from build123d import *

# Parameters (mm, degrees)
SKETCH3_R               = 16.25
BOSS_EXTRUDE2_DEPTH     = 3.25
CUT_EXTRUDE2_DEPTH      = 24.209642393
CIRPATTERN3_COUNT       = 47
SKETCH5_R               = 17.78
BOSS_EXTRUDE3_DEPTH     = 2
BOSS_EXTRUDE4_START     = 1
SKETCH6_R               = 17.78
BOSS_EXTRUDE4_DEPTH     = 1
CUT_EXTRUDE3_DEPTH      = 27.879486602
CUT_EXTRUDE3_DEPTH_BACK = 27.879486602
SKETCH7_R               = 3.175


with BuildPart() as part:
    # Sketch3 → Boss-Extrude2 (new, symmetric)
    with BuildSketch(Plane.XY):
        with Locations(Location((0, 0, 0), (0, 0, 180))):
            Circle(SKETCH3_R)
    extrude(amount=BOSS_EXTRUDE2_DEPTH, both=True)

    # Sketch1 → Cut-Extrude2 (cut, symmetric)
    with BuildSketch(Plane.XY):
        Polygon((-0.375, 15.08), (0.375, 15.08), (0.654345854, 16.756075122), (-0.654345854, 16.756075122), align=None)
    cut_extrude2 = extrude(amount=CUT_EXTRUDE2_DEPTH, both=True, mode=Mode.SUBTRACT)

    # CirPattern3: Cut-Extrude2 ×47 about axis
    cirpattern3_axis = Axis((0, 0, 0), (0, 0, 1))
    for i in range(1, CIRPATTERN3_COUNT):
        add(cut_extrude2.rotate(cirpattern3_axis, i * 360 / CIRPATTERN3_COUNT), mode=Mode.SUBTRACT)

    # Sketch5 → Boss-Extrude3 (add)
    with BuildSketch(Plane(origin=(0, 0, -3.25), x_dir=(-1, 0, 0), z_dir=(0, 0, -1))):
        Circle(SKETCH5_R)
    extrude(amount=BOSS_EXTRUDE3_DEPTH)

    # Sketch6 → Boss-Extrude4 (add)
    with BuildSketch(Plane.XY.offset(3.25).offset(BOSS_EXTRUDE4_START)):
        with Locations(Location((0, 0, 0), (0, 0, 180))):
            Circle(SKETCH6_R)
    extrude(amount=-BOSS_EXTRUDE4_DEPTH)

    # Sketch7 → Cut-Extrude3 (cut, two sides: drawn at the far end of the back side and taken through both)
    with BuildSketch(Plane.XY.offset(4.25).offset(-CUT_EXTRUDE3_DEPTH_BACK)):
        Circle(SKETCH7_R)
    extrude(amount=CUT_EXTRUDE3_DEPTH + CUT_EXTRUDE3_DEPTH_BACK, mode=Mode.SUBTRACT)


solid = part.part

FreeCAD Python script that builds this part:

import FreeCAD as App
import Part
import Sketcher

V = App.Vector

doc = App.newDocument("Part")
body = doc.addObject("PartDesign::Body", "Body")

# Sketch on XY plane
sketch1 = body.newObject("Sketcher::SketchObject", "Sketch")
sketch1.AttachmentSupport = (doc.getObject("XY_Plane"), [""])
sketch1.MapMode = "FlatFace"
sketch1.addGeometry(Part.Circle(V(0, 0, 0), V(0, 0, 1), 16), False)
sketch1.addConstraint(Sketcher.Constraint("Coincident", 0, 3, -1, 1))
sketch1.addConstraint(Sketcher.Constraint("Diameter", 0, 32.5))
pad1 = body.newObject("PartDesign::Pad", "Pad")
pad1.Profile = sketch1
pad1.Length = 6.5
pad1.Midplane = True

# Sketch on XY plane
sketch2 = body.newObject("Sketcher::SketchObject", "Sketch001")
sketch2.AttachmentSupport = (doc.getObject("XY_Plane"), [""])
sketch2.MapMode = "FlatFace"
sketch2.addGeometry(Part.LineSegment(V(-0.4, 15.1, 0), V(0.4, 15.1, 0)), False)
sketch2.addGeometry(Part.LineSegment(V(0.4, 15.1, 0), V(0.7, 16.8, 0)), False)
sketch2.addGeometry(Part.LineSegment(V(0.7, 16.8, 0), V(-0.7, 16.8, 0)), False)
sketch2.addGeometry(Part.LineSegment(V(-0.7, 16.8, 0), V(-0.4, 15.1, 0)), False)
sketch2.addConstraint(Sketcher.Constraint("Coincident", 0, 2, 1, 1))
sketch2.addConstraint(Sketcher.Constraint("Coincident", 1, 2, 2, 1))
sketch2.addConstraint(Sketcher.Constraint("Coincident", 2, 2, 3, 1))
sketch2.addConstraint(Sketcher.Constraint("Coincident", 3, 2, 0, 1))
sketch2.addConstraint(Sketcher.Constraint("Horizontal", 0))
sketch2.addConstraint(Sketcher.Constraint("Horizontal", 2))
sketch2.addConstraint(Sketcher.Constraint("Equal", 1, 3))
sketch2.addConstraint(Sketcher.Constraint("DistanceX", 0, 1, 0, 2, 0.75))
sketch2.addConstraint(Sketcher.Constraint("DistanceY", -1, 1, 0, 2, 15.08))
sketch2.addConstraint(Sketcher.Constraint("DistanceX", -1, 1, 0, 2, 0.375))
sketch2.addConstraint(Sketcher.Constraint("DistanceX", 2, 2, 2, 1, 1.308692))
sketch2.addConstraint(Sketcher.Constraint("Distance", 1, 1.699194))
pocket1 = body.newObject("PartDesign::Pocket", "Pocket")
pocket1.Profile = sketch2
pocket1.Length = 48.419285
pocket1.Midplane = True
doc.recompute()

polarpattern = body.newObject("PartDesign::PolarPattern", "PolarPattern")
polarpattern.Originals = [pocket1]
polarpattern.Axis = (doc.getObject("Z_Axis"), [""])
polarpattern.Angle = 360
polarpattern.Occurrences = 47
body.Tip = polarpattern

# Sketch on XY plane
sketch3 = body.newObject("Sketcher::SketchObject", "Sketch002")
sketch3.AttachmentSupport = (doc.getObject("XY_Plane"), [""])
sketch3.MapMode = "FlatFace"
sketch3.AttachmentOffset = App.Placement(V(0, 0, -3.25), App.Rotation())
sketch3.addGeometry(Part.Circle(V(0, 0, 0), V(0, 0, 1), 18), False)
sketch3.addConstraint(Sketcher.Constraint("Coincident", 0, 3, -1, 1))
sketch3.addConstraint(Sketcher.Constraint("Diameter", 0, 35.56))
pad2 = body.newObject("PartDesign::Pad", "Pad001")
pad2.Profile = sketch3
pad2.Length = 2
pad2.Reversed = True

# Sketch on XY plane
sketch4 = body.newObject("Sketcher::SketchObject", "Sketch003")
sketch4.AttachmentSupport = (doc.getObject("XY_Plane"), [""])
sketch4.MapMode = "FlatFace"
sketch4.AttachmentOffset = App.Placement(V(0, 0, 4.25), App.Rotation())
sketch4.addGeometry(Part.Circle(V(0, 0, 0), V(0, 0, 1), 18), False)
sketch4.addConstraint(Sketcher.Constraint("Coincident", 0, 3, -1, 1))
sketch4.addConstraint(Sketcher.Constraint("Diameter", 0, 35.56))
pad3 = body.newObject("PartDesign::Pad", "Pad002")
pad3.Profile = sketch4
pad3.Length = 1
pad3.Reversed = True

# Sketch on XY plane
sketch5 = body.newObject("Sketcher::SketchObject", "Sketch004")
sketch5.AttachmentSupport = (doc.getObject("XY_Plane"), [""])
sketch5.MapMode = "FlatFace"
sketch5.AttachmentOffset = App.Placement(V(0, 0, 4.25), App.Rotation())
sketch5.addGeometry(Part.Circle(V(0, 0, 0), V(0, 0, 1), 3.2), False)
sketch5.addConstraint(Sketcher.Constraint("Coincident", 0, 3, -1, 1))
sketch5.addConstraint(Sketcher.Constraint("Diameter", 0, 6.35))
pocket2 = body.newObject("PartDesign::Pocket", "Pocket001")
pocket2.Profile = sketch5
pocket2.Type = "ThroughAll"
pocket2.Midplane = True

doc.recompute()
